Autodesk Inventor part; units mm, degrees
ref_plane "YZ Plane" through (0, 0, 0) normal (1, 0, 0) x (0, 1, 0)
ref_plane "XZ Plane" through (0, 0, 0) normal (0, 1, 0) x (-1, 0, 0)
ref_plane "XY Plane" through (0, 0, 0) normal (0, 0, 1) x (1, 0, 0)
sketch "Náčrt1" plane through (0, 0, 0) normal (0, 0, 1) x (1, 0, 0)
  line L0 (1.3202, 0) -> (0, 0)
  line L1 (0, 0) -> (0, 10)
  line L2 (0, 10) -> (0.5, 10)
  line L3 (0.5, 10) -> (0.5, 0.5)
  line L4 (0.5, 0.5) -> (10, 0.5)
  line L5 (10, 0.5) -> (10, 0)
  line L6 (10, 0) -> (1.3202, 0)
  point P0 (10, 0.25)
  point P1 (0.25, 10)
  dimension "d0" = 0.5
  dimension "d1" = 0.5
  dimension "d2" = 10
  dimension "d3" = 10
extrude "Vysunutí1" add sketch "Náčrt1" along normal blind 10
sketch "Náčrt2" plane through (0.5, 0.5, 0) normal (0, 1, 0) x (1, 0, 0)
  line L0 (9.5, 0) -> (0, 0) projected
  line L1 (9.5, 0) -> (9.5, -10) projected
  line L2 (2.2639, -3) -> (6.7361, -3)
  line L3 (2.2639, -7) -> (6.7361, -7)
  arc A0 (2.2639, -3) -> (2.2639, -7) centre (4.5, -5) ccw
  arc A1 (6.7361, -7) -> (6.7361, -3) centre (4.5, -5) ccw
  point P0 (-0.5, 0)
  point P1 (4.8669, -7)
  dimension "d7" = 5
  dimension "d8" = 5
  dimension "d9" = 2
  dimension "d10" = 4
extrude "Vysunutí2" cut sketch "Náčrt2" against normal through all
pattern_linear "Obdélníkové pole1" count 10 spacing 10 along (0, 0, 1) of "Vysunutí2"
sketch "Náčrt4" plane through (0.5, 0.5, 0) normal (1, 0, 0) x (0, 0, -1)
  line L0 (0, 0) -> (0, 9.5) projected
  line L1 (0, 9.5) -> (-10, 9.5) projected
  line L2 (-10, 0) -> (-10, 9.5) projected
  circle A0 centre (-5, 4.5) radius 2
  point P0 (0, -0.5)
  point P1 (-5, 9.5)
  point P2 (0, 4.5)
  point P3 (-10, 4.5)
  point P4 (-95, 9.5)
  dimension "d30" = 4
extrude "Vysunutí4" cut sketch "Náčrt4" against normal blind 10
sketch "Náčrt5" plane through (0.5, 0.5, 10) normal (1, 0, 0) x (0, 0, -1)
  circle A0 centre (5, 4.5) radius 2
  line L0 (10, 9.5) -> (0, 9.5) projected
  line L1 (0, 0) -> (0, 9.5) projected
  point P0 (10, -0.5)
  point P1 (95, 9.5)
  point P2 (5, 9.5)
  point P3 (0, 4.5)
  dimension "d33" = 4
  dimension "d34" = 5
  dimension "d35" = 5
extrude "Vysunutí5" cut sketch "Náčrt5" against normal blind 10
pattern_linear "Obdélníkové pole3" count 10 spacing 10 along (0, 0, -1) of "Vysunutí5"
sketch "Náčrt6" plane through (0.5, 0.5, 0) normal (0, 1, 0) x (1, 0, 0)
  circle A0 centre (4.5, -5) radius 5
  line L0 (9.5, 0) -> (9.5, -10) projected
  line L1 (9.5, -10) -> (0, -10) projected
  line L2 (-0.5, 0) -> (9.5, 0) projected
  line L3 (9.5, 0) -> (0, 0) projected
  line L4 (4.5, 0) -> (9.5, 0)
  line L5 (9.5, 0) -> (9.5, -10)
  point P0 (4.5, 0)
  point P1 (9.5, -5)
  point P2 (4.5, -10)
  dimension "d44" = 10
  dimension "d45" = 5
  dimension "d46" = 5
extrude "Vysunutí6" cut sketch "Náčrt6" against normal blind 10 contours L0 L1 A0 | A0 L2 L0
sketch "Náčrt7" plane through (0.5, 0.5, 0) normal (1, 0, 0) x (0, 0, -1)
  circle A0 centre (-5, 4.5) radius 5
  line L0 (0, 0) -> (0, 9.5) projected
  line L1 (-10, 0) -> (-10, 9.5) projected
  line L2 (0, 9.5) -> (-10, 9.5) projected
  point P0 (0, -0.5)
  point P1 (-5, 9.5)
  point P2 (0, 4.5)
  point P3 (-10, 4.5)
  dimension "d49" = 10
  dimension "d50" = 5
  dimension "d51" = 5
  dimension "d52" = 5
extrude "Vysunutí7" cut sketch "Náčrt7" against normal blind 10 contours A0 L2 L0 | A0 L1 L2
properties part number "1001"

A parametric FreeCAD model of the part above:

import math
import FreeCAD as App
import Part
import Sketcher

doc = App.newDocument("Part")
body = doc.addObject("PartDesign::Body", "Body")

sketch1 = body.newObject("Sketcher::SketchObject", "Sketch")
sketch1.AttachmentSupport = (doc.getObject("XY_Plane"), [""])
sketch1.MapMode = "FlatFace"
sketch1.addGeometry(Part.LineSegment(App.Vector(0, 0, 0), App.Vector(10, 0, 0)), False)
sketch1.addGeometry(Part.LineSegment(App.Vector(10, 0, 0), App.Vector(10, 0.5, 0)), False)
sketch1.addGeometry(Part.LineSegment(App.Vector(10, 0.5, 0), App.Vector(0.5, 0.5, 0)), False)
sketch1.addGeometry(Part.LineSegment(App.Vector(0.5, 0.5, 0), App.Vector(0.5, 10, 0)), False)
sketch1.addGeometry(Part.LineSegment(App.Vector(0.5, 10, 0), App.Vector(0, 10, 0)), False)
sketch1.addGeometry(Part.LineSegment(App.Vector(0, 10, 0), App.Vector(0, 0, 0)), False)
sketch1.addConstraint(Sketcher.Constraint("Coincident", 0, 2, 1, 1))
sketch1.addConstraint(Sketcher.Constraint("Coincident", 1, 2, 2, 1))
sketch1.addConstraint(Sketcher.Constraint("Coincident", 2, 2, 3, 1))
sketch1.addConstraint(Sketcher.Constraint("Coincident", 3, 2, 4, 1))
sketch1.addConstraint(Sketcher.Constraint("Coincident", 4, 2, 5, 1))
sketch1.addConstraint(Sketcher.Constraint("Coincident", 5, 2, 0, 1))
sketch1.addConstraint(Sketcher.Constraint("Horizontal", 0))
sketch1.addConstraint(Sketcher.Constraint("Vertical", 1))
sketch1.addConstraint(Sketcher.Constraint("Horizontal", 2))
sketch1.addConstraint(Sketcher.Constraint("Vertical", 3))
sketch1.addConstraint(Sketcher.Constraint("Horizontal", 4))
sketch1.addConstraint(Sketcher.Constraint("Vertical", 5))
sketch1.addConstraint(Sketcher.Constraint("Coincident", 5, 2, -1, 1))
sketch1.addConstraint(Sketcher.Constraint("Equal", 4, 1))
sketch1.addConstraint(Sketcher.Constraint("Equal", 2, 3))
sketch1.addConstraint(Sketcher.Constraint("DistanceX", 0, 1, 0, 2, 10.0))
sketch1.addConstraint(Sketcher.Constraint("DistanceX", 4, 2, 4, 1, 0.5))
pad1 = body.newObject("PartDesign::Pad", "Pad")
pad1.Profile = sketch1
pad1.Length = 10

sketch2 = body.newObject("Sketcher::SketchObject", "Sketch001")
sketch2.AttachmentSupport = (doc.getObject("XZ_Plane"), [""])
sketch2.MapMode = "FlatFace"
sketch2.AttachmentOffset = App.Placement(App.Vector(0, 0, -0.5), App.Rotation())
sketch2.addGeometry(Part.LineSegment(App.Vector(7.2, 3, 0), App.Vector(2.8, 3, 0)), False)
sketch2.addGeometry(Part.ArcOfCircle(Part.Circle(App.Vector(5, 5, 0), App.Vector(0, 0, 1), 3), math.radians(138), math.radians(222)), False)
sketch2.addGeometry(Part.LineSegment(App.Vector(2.8, 7, 0), App.Vector(7.2, 7, 0)), False)
sketch2.addGeometry(Part.ArcOfCircle(Part.Circle(App.Vector(5, 5, 0), App.Vector(0, 0, 1), 3), math.radians(-42), math.radians(42)), False)
sketch2.addConstraint(Sketcher.Constraint("Coincident", 0, 2, 1, 2))
sketch2.addConstraint(Sketcher.Constraint("Coincident", 1, 1, 2, 1))
sketch2.addConstraint(Sketcher.Constraint("Coincident", 2, 2, 3, 2))
sketch2.addConstraint(Sketcher.Constraint("Coincident", 3, 1, 0, 1))
sketch2.addConstraint(Sketcher.Constraint("Horizontal", 0))
sketch2.addConstraint(Sketcher.Constraint("Horizontal", 2))
sketch2.addConstraint(Sketcher.Constraint("Coincident", 3, 3, 1, 3))
sketch2.addConstraint(Sketcher.Constraint("Equal", 1, 3))
sketch2.addConstraint(Sketcher.Constraint("Vertical", 0, 2, 1, 1))
sketch2.addConstraint(Sketcher.Constraint("DistanceX", -1, 1, 1, 3, 5.0))
sketch2.addConstraint(Sketcher.Constraint("DistanceY", -1, 1, 1, 3, 5.0))
sketch2.addConstraint(Sketcher.Constraint("Radius", 1, 3.0))
sketch2.addConstraint(Sketcher.Constraint("DistanceY", 0, 2, 1, 3, 2.0))
pocket1 = body.newObject("PartDesign::Pocket", "Pocket")
pocket1.Profile = sketch2
pocket1.Type = "ThroughAll"
pocket1.Reversed = True
doc.recompute()

linearpattern = body.newObject("PartDesign::LinearPattern", "LinearPattern")
linearpattern.Originals = [pocket1]
linearpattern.Direction = (doc.getObject("Z_Axis"), [""])
linearpattern.Mode = "offset"
linearpattern.Offset = 10
linearpattern.Occurrences = 10
body.Tip = linearpattern

sketch3 = body.newObject("Sketcher::SketchObject", "Sketch002")
sketch3.AttachmentSupport = (doc.getObject("YZ_Plane"), [""])
sketch3.MapMode = "FlatFace"
sketch3.AttachmentOffset = App.Placement(App.Vector(0, 0, 0.5), App.Rotation())
sketch3.addGeometry(Part.Circle(App.Vector(5, 5, 0), App.Vector(0, 0, 1), 2), False)
sketch3.addConstraint(Sketcher.Constraint("Diameter", 0, 4.0))
sketch3.addConstraint(Sketcher.Constraint("DistanceX", -1, 1, 0, 3, 5.0))
sketch3.addConstraint(Sketcher.Constraint("DistanceY", -1, 1, 0, 3, 5.0))
pocket2 = body.newObject("PartDesign::Pocket", "Pocket001")
pocket2.Profile = sketch3
pocket2.Length = 10

sketch4 = body.newObject("Sketcher::SketchObject", "Sketch003")
sketch4.AttachmentSupport = (doc.getObject("YZ_Plane"), [""])
sketch4.MapMode = "FlatFace"
sketch4.AttachmentOffset = App.Placement(App.Vector(0, 0, 0.5), App.Rotation())
sketch4.addGeometry(Part.Circle(App.Vector(5, 5, 0), App.Vector(0, 0, 1), 2), False)
sketch4.addConstraint(Sketcher.Constraint("Diameter", 0, 4.0))
sketch4.addConstraint(Sketcher.Constraint("DistanceX", -1, 1, 0, 3, 5.0))
sketch4.addConstraint(Sketcher.Constraint("DistanceY", -1, 1, 0, 3, 5.0))
pocket3 = body.newObject("PartDesign::Pocket", "Pocket002")
pocket3.Profile = sketch4
pocket3.Length = 10
doc.recompute()

linearpattern2 = body.newObject("PartDesign::LinearPattern", "LinearPattern001")
linearpattern2.Originals = [pocket3]
linearpattern2.Direction = (doc.getObject("Z_Axis"), [""])
linearpattern2.Mode = "offset"
linearpattern2.Offset = 10
linearpattern2.Occurrences = 10
linearpattern2.Reversed = True
body.Tip = linearpattern2

sketch5 = body.newObject("Sketcher::SketchObject", "Sketch004")
sketch5.AttachmentSupport = (doc.getObject("XZ_Plane"), [""])
sketch5.MapMode = "FlatFace"
sketch5.AttachmentOffset = App.Placement(App.Vector(0, 0, -0.5), App.Rotation())
sketch5.addGeometry(Part.LineSegment(App.Vector(10, 10, 0), App.Vector(10, 5, 0)), False)
sketch5.addGeometry(Part.ArcOfCircle(Part.Circle(App.Vector(5, 5, 0), App.Vector(0, 0, 1), 5), math.radians(0), math.radians(90)), False)
sketch5.addGeometry(Part.LineSegment(App.Vector(5, 10, 0), App.Vector(10, 10, 0)), False)
sketch5.addGeometry(Part.ArcOfCircle(Part.Circle(App.Vector(5, 5, 0), App.Vector(0, 0, 1), 5), math.radians(-90), math.radians(0)), False)
sketch5.addGeometry(Part.LineSegment(App.Vector(10, 5, 0), App.Vector(10, 0, 0)), False)
sketch5.addGeometry(Part.LineSegment(App.Vector(10, 0, 0), App.Vector(5, 0, 0)), False)
sketch5.addConstraint(Sketcher.Constraint("Tangent", 0, 2, 1, 1))
sketch5.addConstraint(Sketcher.Constraint("Tangent", 1, 2, 2, 1))
sketch5.addConstraint(Sketcher.Constraint("Coincident", 2, 2, 0, 1))
sketch5.addConstraint(Sketcher.Constraint("Tangent", 3, 2, 4, 1))
sketch5.addConstraint(Sketcher.Constraint("Coincident", 4, 2, 5, 1))
sketch5.addConstraint(Sketcher.Constraint("Tangent", 5, 2, 3, 1))
sketch5.addConstraint(Sketcher.Constraint("Vertical", 0))
sketch5.addConstraint(Sketcher.Constraint("Horizontal", 2))
sketch5.addConstraint(Sketcher.Constraint("Vertical", 4))
sketch5.addConstraint(Sketcher.Constraint("Horizontal", 5))
sketch5.addConstraint(Sketcher.Constraint("Coincident", 3, 3, 1, 3))
sketch5.addConstraint(Sketcher.Constraint("Equal", 1, 3))
sketch5.addConstraint(Sketcher.Constraint("PointOnObject", 4, 2, -1))
sketch5.addConstraint(Sketcher.Constraint("Radius", 1, 5.0))
sketch5.addConstraint(Sketcher.Constraint("DistanceX", -1, 1, 1, 3, 5.0))
pocket4 = body.newObject("PartDesign::Pocket", "Pocket003")
pocket4.Profile = sketch5
pocket4.Length = 10
pocket4.Reversed = True

sketch6 = body.newObject("Sketcher::SketchObject", "Sketch005")
sketch6.AttachmentSupport = (doc.getObject("YZ_Plane"), [""])
sketch6.MapMode = "FlatFace"
sketch6.AttachmentOffset = App.Placement(App.Vector(0, 0, 0.5), App.Rotation())
sketch6.addGeometry(Part.ArcOfCircle(Part.Circle(App.Vector(5, 5, 0), App.Vector(0, 0, 1), 5), math.radians(-90), math.radians(0)), False)
sketch6.addGeometry(Part.LineSegment(App.Vector(5, 0, 0), App.Vector(10, 0, 0)), False)
sketch6.addGeometry(Part.LineSegment(App.Vector(10, 0, 0), App.Vector(10, 5, 0)), False)
sketch6.addGeometry(Part.ArcOfCircle(Part.Circle(App.Vector(5, 5, 0), App.Vector(0, 0, 1), 5), math.radians(0), math.radians(90)), False)
sketch6.addGeometry(Part.LineSegment(App.Vector(10, 5, 0), App.Vector(10, 10, 0)), False)
sketch6.addGeometry(Part.LineSegment(App.Vector(10, 10, 0), App.Vector(5, 10, 0)), False)
sketch6.addConstraint(Sketcher.Constraint("Tangent", 0, 1, 1, 1))
sketch6.addConstraint(Sketcher.Constraint("Coincident", 1, 2, 2, 1))
sketch6.addConstraint(Sketcher.Constraint("Tangent", 2, 2, 0, 2))
sketch6.addConstraint(Sketcher.Constraint("Tangent", 3, 1, 4, 1))
sketch6.addConstraint(Sketcher.Constraint("Coincident", 4, 2, 5, 1))
sketch6.addConstraint(Sketcher.Constraint("Tangent", 5, 2, 3, 2))
sketch6.addConstraint(Sketcher.Constraint("Horizontal", 1))
sketch6.addConstraint(Sketcher.Constraint("Vertical", 2))
sketch6.addConstraint(Sketcher.Constraint("Vertical", 4))
sketch6.addConstraint(Sketcher.Constraint("Horizontal", 5))
sketch6.addConstraint(Sketcher.Constraint("Coincident", 3, 3, 0, 3))
sketch6.addConstraint(Sketcher.Constraint("Equal", 0, 3))
sketch6.addConstraint(Sketcher.Constraint("PointOnObject", 0, 1, -1))
sketch6.addConstraint(Sketcher.Constraint("Radius", 0, 5.0))
sketch6.addConstraint(Sketcher.Constraint("DistanceX", -1, 1, 0, 3, 5.0))
pocket5 = body.newObject("PartDesign::Pocket", "Pocket004")
pocket5.Profile = sketch6
pocket5.Length = 10

doc.recompute()
